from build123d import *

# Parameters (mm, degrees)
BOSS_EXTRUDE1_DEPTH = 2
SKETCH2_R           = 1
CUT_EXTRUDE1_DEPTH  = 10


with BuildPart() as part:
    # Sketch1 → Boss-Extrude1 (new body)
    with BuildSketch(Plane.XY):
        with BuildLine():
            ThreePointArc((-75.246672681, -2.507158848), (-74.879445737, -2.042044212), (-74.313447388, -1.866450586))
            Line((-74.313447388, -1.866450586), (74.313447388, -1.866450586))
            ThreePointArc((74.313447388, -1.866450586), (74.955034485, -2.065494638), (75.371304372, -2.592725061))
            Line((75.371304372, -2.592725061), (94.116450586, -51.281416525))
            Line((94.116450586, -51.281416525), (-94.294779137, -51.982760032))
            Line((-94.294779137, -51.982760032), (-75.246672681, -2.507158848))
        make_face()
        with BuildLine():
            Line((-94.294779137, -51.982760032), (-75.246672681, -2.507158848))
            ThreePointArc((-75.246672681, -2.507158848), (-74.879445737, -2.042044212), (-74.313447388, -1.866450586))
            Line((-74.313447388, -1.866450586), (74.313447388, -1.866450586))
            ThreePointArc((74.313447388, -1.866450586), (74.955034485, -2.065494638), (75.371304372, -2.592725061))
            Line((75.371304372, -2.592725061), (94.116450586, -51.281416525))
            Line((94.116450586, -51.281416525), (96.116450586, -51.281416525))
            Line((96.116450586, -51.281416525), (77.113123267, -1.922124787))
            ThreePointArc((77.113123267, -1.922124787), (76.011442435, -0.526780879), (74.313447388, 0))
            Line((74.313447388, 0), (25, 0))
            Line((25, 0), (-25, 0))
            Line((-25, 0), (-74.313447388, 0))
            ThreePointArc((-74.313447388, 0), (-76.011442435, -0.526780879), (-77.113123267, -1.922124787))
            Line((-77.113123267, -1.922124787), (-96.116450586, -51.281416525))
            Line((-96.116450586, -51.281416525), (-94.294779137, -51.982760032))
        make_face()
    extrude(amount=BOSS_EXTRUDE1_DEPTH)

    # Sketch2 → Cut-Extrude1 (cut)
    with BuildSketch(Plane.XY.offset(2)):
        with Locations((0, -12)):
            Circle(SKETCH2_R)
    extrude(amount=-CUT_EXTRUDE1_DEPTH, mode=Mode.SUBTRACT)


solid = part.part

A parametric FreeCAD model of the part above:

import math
import FreeCAD as App
import Part
import Sketcher

V = App.Vector

doc = App.newDocument("Part")
body = doc.addObject("PartDesign::Body", "Body")

sketch1 = body.newObject("Sketcher::SketchObject", "Sketch")
sketch1.AttachmentSupport = (doc.getObject("XY_Plane"), [""])
sketch1.MapMode = "FlatFace"
sketch1.addGeometry(Part.LineSegment(V(-94.3, -52, 0), V(94.1, -51.3, 0)), False)
sketch1.addGeometry(Part.LineSegment(V(94.1, -51.3, 0), V(96.1, -51.3, 0)), False)
sketch1.addGeometry(Part.LineSegment(V(96.1, -51.3, 0), V(77.1, -1.9, 0)), False)
sketch1.addGeometry(Part.ArcOfCircle(Part.Circle(V(74.3, -3, 0), V(0, 0, 1), 3), math.radians(21), math.radians(90)), False)
sketch1.addGeometry(Part.LineSegment(V(74.3, 0, 0), V(-74.3, 0, 0)), False)
sketch1.addGeometry(Part.ArcOfCircle(Part.Circle(V(-74.3, -3, 0), V(0, 0, 1), 3), math.radians(90), math.radians(159)), False)
sketch1.addGeometry(Part.LineSegment(V(-77.1, -1.9, 0), V(-96.1, -51.3, 0)), False)
sketch1.addGeometry(Part.LineSegment(V(-96.1, -51.3, 0), V(-94.3, -52, 0)), False)
sketch1.addConstraint(Sketcher.Constraint("Coincident", 0, 2, 1, 1))
sketch1.addConstraint(Sketcher.Constraint("Coincident", 1, 2, 2, 1))
sketch1.addConstraint(Sketcher.Constraint("Tangent", 2, 2, 3, 1))
sketch1.addConstraint(Sketcher.Constraint("Tangent", 3, 2, 4, 1))
sketch1.addConstraint(Sketcher.Constraint("Tangent", 4, 2, 5, 1))
sketch1.addConstraint(Sketcher.Constraint("Tangent", 5, 2, 6, 1))
sketch1.addConstraint(Sketcher.Constraint("Coincident", 6, 2, 7, 1))
sketch1.addConstraint(Sketcher.Constraint("Coincident", 7, 2, 0, 1))
sketch1.addConstraint(Sketcher.Constraint("Horizontal", 1))
sketch1.addConstraint(Sketcher.Constraint("Horizontal", 4))
sketch1.addConstraint(Sketcher.Constraint("Equal", 3, 5))
sketch1.addConstraint(Sketcher.Constraint("Symmetric", 3, 2, 4, 2, -1, 1))
sketch1.addConstraint(Sketcher.Constraint("Symmetric", 1, 2, 6, 2, -2))
sketch1.addConstraint(Sketcher.Constraint("Perpendicular", 6, 7))
sketch1.addConstraint(Sketcher.Constraint("Radius", 3, 3.0))
sketch1.addConstraint(Sketcher.Constraint("DistanceX", 1, 1, 1, 2, 2.0))
sketch1.addConstraint(Sketcher.Constraint("DistanceX", 4, 2, 4, 1, 148.626895))
sketch1.addConstraint(Sketcher.Constraint("DistanceX", -1, 1, 0, 2, 94.116451))
sketch1.addConstraint(Sketcher.Constraint("DistanceX", 7, 2, -1, 1, 94.294779))
sketch1.addConstraint(Sketcher.Constraint("DistanceY", 7, 2, -1, 1, 51.98276))
pad1 = body.newObject("PartDesign::Pad", "Pad")
pad1.Profile = sketch1
pad1.Length = 2

sketch2 = body.newObject("Sketcher::SketchObject", "Sketch001")
sketch2.AttachmentSupport = (doc.getObject("XY_Plane"), [""])
sketch2.MapMode = "FlatFace"
sketch2.AttachmentOffset = App.Placement(V(0, 0, 2), App.Rotation())
sketch2.addGeometry(Part.Circle(V(0, -12, 0), V(0, 0, 1), 1), False)
sketch2.addConstraint(Sketcher.Constraint("PointOnObject", 0, 3, -2))
sketch2.addConstraint(Sketcher.Constraint("Diameter", 0, 2.0))
sketch2.addConstraint(Sketcher.Constraint("DistanceY", 0, 3, -1, 1, 12.0))
pocket1 = body.newObject("PartDesign::Pocket", "Pocket")
pocket1.Profile = sketch2
pocket1.Length = 10

doc.recompute()
